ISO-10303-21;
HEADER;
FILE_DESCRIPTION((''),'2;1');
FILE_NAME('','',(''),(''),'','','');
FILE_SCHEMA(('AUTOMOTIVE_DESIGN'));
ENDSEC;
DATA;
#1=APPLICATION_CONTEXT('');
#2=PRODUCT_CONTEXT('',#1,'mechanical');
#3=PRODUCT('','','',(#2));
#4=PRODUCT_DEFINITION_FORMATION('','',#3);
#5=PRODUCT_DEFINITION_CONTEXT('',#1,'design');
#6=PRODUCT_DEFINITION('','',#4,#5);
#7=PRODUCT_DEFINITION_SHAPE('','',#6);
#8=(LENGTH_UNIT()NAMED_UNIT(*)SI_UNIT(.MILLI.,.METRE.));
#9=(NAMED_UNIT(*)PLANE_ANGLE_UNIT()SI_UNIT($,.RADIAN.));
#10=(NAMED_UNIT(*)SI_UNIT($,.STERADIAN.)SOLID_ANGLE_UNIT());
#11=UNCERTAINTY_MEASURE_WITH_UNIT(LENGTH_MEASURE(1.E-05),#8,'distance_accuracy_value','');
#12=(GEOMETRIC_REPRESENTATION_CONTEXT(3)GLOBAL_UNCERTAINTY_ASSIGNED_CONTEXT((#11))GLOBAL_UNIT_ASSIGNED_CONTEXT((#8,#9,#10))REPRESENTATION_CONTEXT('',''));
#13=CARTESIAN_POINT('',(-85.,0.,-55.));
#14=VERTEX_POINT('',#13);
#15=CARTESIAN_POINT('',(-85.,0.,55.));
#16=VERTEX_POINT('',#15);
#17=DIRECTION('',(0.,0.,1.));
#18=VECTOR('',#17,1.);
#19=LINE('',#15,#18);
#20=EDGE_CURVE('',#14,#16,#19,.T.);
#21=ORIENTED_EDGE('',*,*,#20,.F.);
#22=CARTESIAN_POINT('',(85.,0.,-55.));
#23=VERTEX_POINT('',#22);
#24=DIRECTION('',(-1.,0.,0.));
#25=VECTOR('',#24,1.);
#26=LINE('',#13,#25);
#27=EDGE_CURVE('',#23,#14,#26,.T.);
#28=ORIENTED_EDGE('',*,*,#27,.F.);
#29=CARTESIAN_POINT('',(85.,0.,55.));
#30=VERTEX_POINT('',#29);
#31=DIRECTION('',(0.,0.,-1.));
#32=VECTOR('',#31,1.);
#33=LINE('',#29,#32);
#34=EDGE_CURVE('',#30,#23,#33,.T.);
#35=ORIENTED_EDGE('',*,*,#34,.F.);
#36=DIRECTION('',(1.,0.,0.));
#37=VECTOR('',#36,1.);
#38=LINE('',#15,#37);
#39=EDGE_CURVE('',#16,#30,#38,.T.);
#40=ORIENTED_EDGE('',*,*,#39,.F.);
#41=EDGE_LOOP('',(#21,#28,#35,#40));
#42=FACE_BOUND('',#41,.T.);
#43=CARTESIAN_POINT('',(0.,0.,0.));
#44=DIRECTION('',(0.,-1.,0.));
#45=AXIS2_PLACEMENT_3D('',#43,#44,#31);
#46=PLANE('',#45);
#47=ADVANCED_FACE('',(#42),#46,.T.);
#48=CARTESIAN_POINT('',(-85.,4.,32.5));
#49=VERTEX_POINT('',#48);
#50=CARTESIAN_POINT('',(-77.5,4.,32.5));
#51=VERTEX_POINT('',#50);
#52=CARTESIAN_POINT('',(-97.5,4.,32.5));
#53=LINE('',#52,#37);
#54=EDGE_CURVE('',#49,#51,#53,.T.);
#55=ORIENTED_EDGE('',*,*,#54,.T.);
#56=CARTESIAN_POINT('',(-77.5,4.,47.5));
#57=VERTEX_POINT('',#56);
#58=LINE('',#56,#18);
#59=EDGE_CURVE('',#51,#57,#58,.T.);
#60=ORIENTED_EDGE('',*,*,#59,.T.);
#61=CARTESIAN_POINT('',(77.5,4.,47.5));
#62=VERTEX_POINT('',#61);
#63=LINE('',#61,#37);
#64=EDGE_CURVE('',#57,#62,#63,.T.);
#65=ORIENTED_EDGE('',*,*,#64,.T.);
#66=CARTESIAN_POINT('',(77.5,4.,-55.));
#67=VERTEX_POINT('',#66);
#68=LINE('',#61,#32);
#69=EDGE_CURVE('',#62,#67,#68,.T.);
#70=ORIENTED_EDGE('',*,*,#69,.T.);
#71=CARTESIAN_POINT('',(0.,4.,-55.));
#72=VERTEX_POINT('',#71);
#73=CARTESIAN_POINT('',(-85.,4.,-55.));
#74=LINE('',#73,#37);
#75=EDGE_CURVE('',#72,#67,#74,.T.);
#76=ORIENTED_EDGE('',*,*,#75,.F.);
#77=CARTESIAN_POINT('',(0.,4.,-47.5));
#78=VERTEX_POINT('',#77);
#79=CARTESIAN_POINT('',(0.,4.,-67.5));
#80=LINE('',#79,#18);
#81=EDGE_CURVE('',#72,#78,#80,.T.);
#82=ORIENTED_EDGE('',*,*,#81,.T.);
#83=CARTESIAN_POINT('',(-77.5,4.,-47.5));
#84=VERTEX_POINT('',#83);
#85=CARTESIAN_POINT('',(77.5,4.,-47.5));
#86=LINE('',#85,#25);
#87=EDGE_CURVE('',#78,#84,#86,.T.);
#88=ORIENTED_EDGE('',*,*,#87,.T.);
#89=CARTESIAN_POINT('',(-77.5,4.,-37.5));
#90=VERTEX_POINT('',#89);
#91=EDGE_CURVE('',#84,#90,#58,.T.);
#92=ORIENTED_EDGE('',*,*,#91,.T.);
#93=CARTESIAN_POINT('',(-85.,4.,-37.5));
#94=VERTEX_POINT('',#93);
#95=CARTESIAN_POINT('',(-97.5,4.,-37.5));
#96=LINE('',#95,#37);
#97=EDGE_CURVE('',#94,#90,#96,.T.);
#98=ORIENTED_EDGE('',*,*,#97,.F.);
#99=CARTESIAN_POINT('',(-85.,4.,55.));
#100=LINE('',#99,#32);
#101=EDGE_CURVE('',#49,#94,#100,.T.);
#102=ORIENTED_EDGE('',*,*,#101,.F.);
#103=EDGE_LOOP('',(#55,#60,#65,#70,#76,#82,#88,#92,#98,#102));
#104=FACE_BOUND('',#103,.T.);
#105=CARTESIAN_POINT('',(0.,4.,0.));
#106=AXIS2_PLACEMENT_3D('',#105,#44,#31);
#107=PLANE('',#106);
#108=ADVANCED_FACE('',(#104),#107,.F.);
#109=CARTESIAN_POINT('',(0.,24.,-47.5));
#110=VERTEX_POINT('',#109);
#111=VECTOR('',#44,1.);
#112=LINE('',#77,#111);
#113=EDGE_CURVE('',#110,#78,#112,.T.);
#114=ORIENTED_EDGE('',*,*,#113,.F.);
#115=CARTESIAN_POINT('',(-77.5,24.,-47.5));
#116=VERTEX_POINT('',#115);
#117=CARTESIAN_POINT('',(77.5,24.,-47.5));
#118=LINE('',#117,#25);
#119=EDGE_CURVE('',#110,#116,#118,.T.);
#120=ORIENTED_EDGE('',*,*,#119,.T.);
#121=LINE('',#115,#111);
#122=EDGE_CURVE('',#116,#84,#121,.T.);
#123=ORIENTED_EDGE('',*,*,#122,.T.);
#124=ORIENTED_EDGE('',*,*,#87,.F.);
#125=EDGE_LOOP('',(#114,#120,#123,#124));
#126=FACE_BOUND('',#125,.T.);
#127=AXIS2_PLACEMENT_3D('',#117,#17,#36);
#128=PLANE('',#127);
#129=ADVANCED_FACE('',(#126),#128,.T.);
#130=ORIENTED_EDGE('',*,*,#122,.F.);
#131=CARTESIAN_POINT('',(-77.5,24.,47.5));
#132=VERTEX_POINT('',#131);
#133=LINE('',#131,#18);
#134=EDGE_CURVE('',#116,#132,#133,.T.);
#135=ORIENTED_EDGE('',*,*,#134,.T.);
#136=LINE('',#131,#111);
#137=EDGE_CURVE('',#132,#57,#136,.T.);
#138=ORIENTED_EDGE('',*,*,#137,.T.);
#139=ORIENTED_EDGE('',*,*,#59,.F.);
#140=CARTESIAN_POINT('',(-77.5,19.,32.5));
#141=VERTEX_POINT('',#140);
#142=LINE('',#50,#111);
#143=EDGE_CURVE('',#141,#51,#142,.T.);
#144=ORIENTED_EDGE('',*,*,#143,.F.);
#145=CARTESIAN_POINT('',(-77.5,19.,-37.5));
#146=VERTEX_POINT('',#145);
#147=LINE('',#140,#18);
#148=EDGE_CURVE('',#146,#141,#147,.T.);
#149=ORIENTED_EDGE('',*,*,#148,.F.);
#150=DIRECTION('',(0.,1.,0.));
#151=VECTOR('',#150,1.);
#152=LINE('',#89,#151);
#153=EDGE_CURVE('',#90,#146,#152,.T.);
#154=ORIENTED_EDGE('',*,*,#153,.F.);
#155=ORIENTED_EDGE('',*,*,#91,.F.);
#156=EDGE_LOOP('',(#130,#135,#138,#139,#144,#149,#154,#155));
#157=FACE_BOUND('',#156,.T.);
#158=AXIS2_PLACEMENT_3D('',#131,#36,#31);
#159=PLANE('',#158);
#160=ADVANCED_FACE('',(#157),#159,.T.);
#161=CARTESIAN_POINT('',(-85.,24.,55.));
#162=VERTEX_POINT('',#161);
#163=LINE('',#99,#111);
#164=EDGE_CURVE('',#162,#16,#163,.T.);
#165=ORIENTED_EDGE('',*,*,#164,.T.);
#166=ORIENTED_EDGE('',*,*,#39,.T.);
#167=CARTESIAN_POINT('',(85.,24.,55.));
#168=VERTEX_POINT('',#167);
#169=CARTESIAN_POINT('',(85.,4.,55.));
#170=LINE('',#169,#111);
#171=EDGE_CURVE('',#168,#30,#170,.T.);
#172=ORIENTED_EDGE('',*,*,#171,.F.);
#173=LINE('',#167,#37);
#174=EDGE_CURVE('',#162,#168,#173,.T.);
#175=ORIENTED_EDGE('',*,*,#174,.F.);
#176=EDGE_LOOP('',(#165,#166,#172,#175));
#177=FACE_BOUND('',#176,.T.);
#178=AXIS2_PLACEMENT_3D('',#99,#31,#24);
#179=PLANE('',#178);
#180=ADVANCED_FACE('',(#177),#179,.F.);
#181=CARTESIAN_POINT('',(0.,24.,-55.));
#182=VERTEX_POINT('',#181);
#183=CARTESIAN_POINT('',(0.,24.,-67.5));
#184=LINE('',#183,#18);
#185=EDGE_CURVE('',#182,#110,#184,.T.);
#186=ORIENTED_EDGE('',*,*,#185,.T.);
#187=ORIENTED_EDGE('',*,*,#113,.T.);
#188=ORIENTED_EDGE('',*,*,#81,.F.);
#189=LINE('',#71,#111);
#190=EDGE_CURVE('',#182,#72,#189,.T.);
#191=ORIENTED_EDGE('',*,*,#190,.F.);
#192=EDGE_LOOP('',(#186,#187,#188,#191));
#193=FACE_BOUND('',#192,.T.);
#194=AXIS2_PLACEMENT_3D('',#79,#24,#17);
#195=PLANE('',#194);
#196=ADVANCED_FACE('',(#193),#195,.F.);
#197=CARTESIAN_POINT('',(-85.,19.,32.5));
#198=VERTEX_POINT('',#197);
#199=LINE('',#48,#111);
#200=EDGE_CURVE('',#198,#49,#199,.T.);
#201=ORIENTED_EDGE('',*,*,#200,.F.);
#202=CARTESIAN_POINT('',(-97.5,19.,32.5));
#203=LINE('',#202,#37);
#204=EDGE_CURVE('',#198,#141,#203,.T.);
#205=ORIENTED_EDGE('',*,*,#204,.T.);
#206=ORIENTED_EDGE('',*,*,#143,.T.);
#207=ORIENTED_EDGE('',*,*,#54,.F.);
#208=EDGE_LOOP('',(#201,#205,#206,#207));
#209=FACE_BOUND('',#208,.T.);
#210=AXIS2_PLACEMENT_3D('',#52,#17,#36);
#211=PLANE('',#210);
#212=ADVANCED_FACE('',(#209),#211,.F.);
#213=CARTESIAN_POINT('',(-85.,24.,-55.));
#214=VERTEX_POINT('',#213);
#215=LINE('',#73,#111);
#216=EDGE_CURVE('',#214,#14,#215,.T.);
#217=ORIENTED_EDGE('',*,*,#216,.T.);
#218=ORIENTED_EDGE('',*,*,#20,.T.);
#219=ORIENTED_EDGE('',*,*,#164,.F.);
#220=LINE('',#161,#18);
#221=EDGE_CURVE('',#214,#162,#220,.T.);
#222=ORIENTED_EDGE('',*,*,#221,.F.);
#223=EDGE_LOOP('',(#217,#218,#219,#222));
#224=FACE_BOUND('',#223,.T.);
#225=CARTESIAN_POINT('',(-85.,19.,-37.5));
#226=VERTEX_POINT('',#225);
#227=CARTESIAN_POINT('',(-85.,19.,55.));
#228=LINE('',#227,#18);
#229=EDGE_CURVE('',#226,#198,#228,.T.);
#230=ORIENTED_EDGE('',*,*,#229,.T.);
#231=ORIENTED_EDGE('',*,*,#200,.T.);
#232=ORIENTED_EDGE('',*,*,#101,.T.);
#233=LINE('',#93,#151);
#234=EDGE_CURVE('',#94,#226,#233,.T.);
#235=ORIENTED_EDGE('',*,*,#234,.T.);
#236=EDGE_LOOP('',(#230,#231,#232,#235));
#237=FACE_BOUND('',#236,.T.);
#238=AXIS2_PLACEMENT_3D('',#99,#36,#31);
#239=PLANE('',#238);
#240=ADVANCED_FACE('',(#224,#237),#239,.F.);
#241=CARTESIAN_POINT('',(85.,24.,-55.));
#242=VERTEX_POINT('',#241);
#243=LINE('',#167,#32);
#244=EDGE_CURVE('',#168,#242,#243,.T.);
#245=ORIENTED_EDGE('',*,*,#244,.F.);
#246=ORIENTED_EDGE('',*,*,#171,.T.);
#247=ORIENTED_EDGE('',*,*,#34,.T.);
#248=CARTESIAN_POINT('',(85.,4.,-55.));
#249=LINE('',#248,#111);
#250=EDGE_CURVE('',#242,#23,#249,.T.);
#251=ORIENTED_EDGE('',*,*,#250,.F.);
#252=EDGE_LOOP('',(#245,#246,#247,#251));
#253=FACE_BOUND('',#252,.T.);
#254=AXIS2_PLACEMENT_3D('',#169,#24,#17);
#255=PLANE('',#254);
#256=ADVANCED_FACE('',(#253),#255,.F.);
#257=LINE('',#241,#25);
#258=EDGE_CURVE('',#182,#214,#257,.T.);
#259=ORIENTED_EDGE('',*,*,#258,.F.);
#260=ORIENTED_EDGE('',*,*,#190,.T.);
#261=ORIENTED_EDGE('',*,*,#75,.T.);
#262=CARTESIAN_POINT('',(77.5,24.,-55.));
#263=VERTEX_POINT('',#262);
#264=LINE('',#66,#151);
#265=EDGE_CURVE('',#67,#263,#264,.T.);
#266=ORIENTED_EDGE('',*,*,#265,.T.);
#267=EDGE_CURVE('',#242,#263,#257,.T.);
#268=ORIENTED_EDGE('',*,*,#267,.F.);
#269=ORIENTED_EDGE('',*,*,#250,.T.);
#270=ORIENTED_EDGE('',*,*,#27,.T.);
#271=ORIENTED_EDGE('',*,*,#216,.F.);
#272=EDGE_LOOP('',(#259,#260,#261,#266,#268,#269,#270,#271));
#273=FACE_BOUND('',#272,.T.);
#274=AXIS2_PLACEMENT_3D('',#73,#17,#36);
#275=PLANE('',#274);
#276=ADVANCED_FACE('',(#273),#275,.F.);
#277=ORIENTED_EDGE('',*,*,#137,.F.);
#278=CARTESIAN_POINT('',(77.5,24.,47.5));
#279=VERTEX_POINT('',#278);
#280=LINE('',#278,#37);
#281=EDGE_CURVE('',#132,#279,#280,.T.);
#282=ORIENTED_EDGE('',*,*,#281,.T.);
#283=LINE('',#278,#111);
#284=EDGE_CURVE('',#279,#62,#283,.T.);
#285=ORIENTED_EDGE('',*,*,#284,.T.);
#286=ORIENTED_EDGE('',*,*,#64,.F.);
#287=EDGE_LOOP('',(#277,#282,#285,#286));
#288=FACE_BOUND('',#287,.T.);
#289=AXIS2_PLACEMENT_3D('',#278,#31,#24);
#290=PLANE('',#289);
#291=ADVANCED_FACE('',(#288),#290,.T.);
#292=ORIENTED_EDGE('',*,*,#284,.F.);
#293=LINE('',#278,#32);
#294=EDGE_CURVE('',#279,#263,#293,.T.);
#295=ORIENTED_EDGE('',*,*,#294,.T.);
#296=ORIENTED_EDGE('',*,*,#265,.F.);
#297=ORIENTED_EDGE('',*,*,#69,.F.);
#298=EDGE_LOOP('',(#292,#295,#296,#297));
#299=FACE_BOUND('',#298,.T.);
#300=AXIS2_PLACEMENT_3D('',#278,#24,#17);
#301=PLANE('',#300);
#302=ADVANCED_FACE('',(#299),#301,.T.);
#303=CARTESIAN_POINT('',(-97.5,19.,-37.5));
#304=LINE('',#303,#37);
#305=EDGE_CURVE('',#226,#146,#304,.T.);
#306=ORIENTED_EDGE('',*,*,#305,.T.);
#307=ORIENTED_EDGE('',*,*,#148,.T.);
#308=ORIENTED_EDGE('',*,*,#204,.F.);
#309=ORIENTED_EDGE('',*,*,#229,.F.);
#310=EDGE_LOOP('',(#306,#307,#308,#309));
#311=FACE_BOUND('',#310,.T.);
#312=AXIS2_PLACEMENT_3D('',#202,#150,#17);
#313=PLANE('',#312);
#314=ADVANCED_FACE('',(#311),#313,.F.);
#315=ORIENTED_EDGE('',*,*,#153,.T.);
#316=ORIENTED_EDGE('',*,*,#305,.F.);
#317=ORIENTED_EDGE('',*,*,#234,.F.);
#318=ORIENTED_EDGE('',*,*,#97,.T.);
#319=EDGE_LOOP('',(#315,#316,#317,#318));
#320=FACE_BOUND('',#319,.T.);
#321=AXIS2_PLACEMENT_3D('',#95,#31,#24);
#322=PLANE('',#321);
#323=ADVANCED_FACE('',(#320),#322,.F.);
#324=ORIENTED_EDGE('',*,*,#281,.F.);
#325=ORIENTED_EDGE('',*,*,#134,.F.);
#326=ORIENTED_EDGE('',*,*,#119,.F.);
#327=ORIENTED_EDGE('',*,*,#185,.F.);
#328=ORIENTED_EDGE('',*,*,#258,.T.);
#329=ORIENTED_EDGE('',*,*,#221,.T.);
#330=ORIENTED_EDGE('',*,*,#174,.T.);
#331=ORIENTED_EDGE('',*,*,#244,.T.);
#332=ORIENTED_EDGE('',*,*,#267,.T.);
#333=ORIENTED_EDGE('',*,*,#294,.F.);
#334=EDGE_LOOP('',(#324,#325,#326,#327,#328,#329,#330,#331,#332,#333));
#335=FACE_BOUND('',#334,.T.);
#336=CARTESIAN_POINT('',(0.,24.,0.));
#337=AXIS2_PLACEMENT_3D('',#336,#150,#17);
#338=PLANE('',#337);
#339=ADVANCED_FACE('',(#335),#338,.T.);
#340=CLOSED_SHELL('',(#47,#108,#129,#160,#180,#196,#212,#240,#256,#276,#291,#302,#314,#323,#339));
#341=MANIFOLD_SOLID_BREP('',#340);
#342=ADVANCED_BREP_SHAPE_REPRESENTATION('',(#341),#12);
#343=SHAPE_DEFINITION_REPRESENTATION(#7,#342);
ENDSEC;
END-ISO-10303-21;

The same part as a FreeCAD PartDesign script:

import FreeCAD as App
import Part
import Sketcher

V = App.Vector

doc = App.newDocument("Part")
body = doc.addObject("PartDesign::Body", "Body")

# Sketch on XZ plane
sketch1 = body.newObject("Sketcher::SketchObject", "Sketch")
sketch1.AttachmentSupport = (doc.getObject("XZ_Plane"), [""])
sketch1.MapMode = "FlatFace"
sketch1.addGeometry(Part.LineSegment(V(-85, -55, 0), V(-85, 55, 0)), False)
sketch1.addGeometry(Part.LineSegment(V(-85, 55, 0), V(85, 55, 0)), False)
sketch1.addGeometry(Part.LineSegment(V(85, 55, 0), V(85, -55, 0)), False)
sketch1.addGeometry(Part.LineSegment(V(85, -55, 0), V(-85, -55, 0)), False)
sketch1.addConstraint(Sketcher.Constraint("Coincident", 0, 2, 1, 1))
sketch1.addConstraint(Sketcher.Constraint("Coincident", 1, 2, 2, 1))
sketch1.addConstraint(Sketcher.Constraint("Coincident", 2, 2, 3, 1))
sketch1.addConstraint(Sketcher.Constraint("Coincident", 3, 2, 0, 1))
sketch1.addConstraint(Sketcher.Constraint("Vertical", 0))
sketch1.addConstraint(Sketcher.Constraint("Horizontal", 1))
sketch1.addConstraint(Sketcher.Constraint("Vertical", 2))
sketch1.addConstraint(Sketcher.Constraint("Horizontal", 3))
sketch1.addConstraint(Sketcher.Constraint("Symmetric", 0, 2, 2, 2, -1, 1))
sketch1.addConstraint(Sketcher.Constraint("DistanceX", 1, 1, 1, 2, 170.0))
sketch1.addConstraint(Sketcher.Constraint("DistanceY", 0, 1, 0, 2, 110.0))
pad1 = body.newObject("PartDesign::Pad", "Pad")
pad1.Profile = sketch1
pad1.Length = 4
pad1.Reversed = True

# Sketch on XZ plane
sketch2 = body.newObject("Sketcher::SketchObject", "Sketch001")
sketch2.AttachmentSupport = (doc.getObject("XZ_Plane"), [""])
sketch2.MapMode = "FlatFace"
sketch2.AttachmentOffset = App.Placement(V(0, 0, -4), App.Rotation())
sketch2.addGeometry(Part.LineSegment(V(-85, -55, 0), V(-85, 55, 0)), False)
sketch2.addGeometry(Part.LineSegment(V(-85, 55, 0), V(85, 55, 0)), False)
sketch2.addGeometry(Part.LineSegment(V(85, 55, 0), V(85, -55, 0)), False)
sketch2.addGeometry(Part.LineSegment(V(85, -55, 0), V(-85, -55, 0)), False)
sketch2.addGeometry(Part.LineSegment(V(78, 48, 0), V(-78, 48, 0)), False)
sketch2.addGeometry(Part.LineSegment(V(-78, 48, 0), V(-78, -48, 0)), False)
sketch2.addGeometry(Part.LineSegment(V(-78, -48, 0), V(78, -48, 0)), False)
sketch2.addGeometry(Part.LineSegment(V(78, -48, 0), V(78, 48, 0)), False)
sketch2.addConstraint(Sketcher.Constraint("Coincident", 0, 2, 1, 1))
sketch2.addConstraint(Sketcher.Constraint("Coincident", 1, 2, 2, 1))
sketch2.addConstraint(Sketcher.Constraint("Coincident", 2, 2, 3, 1))
sketch2.addConstraint(Sketcher.Constraint("Coincident", 3, 2, 0, 1))
sketch2.addConstraint(Sketcher.Constraint("Coincident", 4, 2, 5, 1))
sketch2.addConstraint(Sketcher.Constraint("Coincident", 5, 2, 6, 1))
sketch2.addConstraint(Sketcher.Constraint("Coincident", 6, 2, 7, 1))
sketch2.addConstraint(Sketcher.Constraint("Coincident", 7, 2, 4, 1))
sketch2.addConstraint(Sketcher.Constraint("Vertical", 0))
sketch2.addConstraint(Sketcher.Constraint("Horizontal", 1))
sketch2.addConstraint(Sketcher.Constraint("Vertical", 2))
sketch2.addConstraint(Sketcher.Constraint("Horizontal", 3))
sketch2.addConstraint(Sketcher.Constraint("Horizontal", 4))
sketch2.addConstraint(Sketcher.Constraint("Vertical", 5))
sketch2.addConstraint(Sketcher.Constraint("Horizontal", 6))
sketch2.addConstraint(Sketcher.Constraint("Vertical", 7))
sketch2.addConstraint(Sketcher.Constraint("Symmetric", 0, 2, 2, 2, -1, 1))
sketch2.addConstraint(Sketcher.Constraint("Symmetric", 4, 2, 6, 2, -1, 1))
sketch2.addConstraint(Sketcher.Constraint("DistanceX", 1, 1, 1, 2, 170.0))
sketch2.addConstraint(Sketcher.Constraint("DistanceX", 4, 2, 4, 1, 155.0))
sketch2.addConstraint(Sketcher.Constraint("DistanceY", 0, 1, 0, 2, 110.0))
sketch2.addConstraint(Sketcher.Constraint("DistanceY", 5, 2, 5, 1, 95.0))
pad2 = body.newObject("PartDesign::Pad", "Pad001")
pad2.Profile = sketch2
pad2.Length = 20
pad2.Reversed = True

# Sketch on YZ plane
sketch3 = body.newObject("Sketcher::SketchObject", "Sketch002")
sketch3.AttachmentSupport = (doc.getObject("YZ_Plane"), [""])
sketch3.MapMode = "FlatFace"
sketch3.AttachmentOffset = App.Placement(V(0, 0, -77.5), App.Rotation())
sketch3.addGeometry(Part.LineSegment(V(19, 32, 0), V(4, 32, 0)), False)
sketch3.addGeometry(Part.LineSegment(V(4, 32, 0), V(4, -38, 0)), False)
sketch3.addGeometry(Part.LineSegment(V(4, -38, 0), V(19, -38, 0)), False)
sketch3.addGeometry(Part.LineSegment(V(19, -38, 0), V(19, 32, 0)), False)
sketch3.addConstraint(Sketcher.Constraint("Coincident", 0, 2, 1, 1))
sketch3.addConstraint(Sketcher.Constraint("Coincident", 1, 2, 2, 1))
sketch3.addConstraint(Sketcher.Constraint("Coincident", 2, 2, 3, 1))
sketch3.addConstraint(Sketcher.Constraint("Coincident", 3, 2, 0, 1))
sketch3.addConstraint(Sketcher.Constraint("Horizontal", 0))
sketch3.addConstraint(Sketcher.Constraint("Vertical", 1))
sketch3.addConstraint(Sketcher.Constraint("Horizontal", 2))
sketch3.addConstraint(Sketcher.Constraint("Vertical", 3))
sketch3.addConstraint(Sketcher.Constraint("DistanceX", 0, 2, 0, 1, 15.0))
sketch3.addConstraint(Sketcher.Constraint("DistanceY", 1, 2, 1, 1, 70.0))
sketch3.addConstraint(Sketcher.Constraint("DistanceX", -1, 1, 0, 2, 4.0))
sketch3.addConstraint(Sketcher.Constraint("DistanceY", -1, 1, 0, 2, 32.5))
pocket1 = body.newObject("PartDesign::Pocket", "Pocket")
pocket1.Profile = sketch3
pocket1.Length = 20

# Sketch on XY plane
sketch4 = body.newObject("Sketcher::SketchObject", "Sketch003")
sketch4.AttachmentSupport = (doc.getObject("XY_Plane"), [""])
sketch4.MapMode = "FlatFace"
sketch4.AttachmentOffset = App.Placement(V(0, 0, -47.5), App.Rotation())
sketch4.addGeometry(Part.LineSegment(V(0, 24, 0), V(0, 4, 0)), False)
sketch4.addGeometry(Part.LineSegment(V(0, 4, 0), V(78, 4, 0)), False)
sketch4.addGeometry(Part.LineSegment(V(78, 4, 0), V(78, 24, 0)), False)
sketch4.addGeometry(Part.LineSegment(V(78, 24, 0), V(0, 24, 0)), False)
sketch4.addConstraint(Sketcher.Constraint("Coincident", 0, 2, 1, 1))
sketch4.addConstraint(Sketcher.Constraint("Coincident", 1, 2, 2, 1))
sketch4.addConstraint(Sketcher.Constraint("Coincident", 2, 2, 3, 1))
sketch4.addConstraint(Sketcher.Constraint("Coincident", 3, 2, 0, 1))
sketch4.addConstraint(Sketcher.Constraint("Vertical", 0))
sketch4.addConstraint(Sketcher.Constraint("Horizontal", 1))
sketch4.addConstraint(Sketcher.Constraint("Vertical", 2))
sketch4.addConstraint(Sketcher.Constraint("Horizontal", 3))
sketch4.addConstraint(Sketcher.Constraint("PointOnObject", 0, 2, -2))
sketch4.addConstraint(Sketcher.Constraint("DistanceY", 0, 2, 0, 1, 20.0))
sketch4.addConstraint(Sketcher.Constraint("DistanceX", 1, 1, 1, 2, 77.5))
sketch4.addConstraint(Sketcher.Constraint("DistanceY", -1, 1, 0, 2, 4.0))
pocket2 = body.newObject("PartDesign::Pocket", "Pocket001")
pocket2.Profile = sketch4
pocket2.Length = 20

doc.recompute()
